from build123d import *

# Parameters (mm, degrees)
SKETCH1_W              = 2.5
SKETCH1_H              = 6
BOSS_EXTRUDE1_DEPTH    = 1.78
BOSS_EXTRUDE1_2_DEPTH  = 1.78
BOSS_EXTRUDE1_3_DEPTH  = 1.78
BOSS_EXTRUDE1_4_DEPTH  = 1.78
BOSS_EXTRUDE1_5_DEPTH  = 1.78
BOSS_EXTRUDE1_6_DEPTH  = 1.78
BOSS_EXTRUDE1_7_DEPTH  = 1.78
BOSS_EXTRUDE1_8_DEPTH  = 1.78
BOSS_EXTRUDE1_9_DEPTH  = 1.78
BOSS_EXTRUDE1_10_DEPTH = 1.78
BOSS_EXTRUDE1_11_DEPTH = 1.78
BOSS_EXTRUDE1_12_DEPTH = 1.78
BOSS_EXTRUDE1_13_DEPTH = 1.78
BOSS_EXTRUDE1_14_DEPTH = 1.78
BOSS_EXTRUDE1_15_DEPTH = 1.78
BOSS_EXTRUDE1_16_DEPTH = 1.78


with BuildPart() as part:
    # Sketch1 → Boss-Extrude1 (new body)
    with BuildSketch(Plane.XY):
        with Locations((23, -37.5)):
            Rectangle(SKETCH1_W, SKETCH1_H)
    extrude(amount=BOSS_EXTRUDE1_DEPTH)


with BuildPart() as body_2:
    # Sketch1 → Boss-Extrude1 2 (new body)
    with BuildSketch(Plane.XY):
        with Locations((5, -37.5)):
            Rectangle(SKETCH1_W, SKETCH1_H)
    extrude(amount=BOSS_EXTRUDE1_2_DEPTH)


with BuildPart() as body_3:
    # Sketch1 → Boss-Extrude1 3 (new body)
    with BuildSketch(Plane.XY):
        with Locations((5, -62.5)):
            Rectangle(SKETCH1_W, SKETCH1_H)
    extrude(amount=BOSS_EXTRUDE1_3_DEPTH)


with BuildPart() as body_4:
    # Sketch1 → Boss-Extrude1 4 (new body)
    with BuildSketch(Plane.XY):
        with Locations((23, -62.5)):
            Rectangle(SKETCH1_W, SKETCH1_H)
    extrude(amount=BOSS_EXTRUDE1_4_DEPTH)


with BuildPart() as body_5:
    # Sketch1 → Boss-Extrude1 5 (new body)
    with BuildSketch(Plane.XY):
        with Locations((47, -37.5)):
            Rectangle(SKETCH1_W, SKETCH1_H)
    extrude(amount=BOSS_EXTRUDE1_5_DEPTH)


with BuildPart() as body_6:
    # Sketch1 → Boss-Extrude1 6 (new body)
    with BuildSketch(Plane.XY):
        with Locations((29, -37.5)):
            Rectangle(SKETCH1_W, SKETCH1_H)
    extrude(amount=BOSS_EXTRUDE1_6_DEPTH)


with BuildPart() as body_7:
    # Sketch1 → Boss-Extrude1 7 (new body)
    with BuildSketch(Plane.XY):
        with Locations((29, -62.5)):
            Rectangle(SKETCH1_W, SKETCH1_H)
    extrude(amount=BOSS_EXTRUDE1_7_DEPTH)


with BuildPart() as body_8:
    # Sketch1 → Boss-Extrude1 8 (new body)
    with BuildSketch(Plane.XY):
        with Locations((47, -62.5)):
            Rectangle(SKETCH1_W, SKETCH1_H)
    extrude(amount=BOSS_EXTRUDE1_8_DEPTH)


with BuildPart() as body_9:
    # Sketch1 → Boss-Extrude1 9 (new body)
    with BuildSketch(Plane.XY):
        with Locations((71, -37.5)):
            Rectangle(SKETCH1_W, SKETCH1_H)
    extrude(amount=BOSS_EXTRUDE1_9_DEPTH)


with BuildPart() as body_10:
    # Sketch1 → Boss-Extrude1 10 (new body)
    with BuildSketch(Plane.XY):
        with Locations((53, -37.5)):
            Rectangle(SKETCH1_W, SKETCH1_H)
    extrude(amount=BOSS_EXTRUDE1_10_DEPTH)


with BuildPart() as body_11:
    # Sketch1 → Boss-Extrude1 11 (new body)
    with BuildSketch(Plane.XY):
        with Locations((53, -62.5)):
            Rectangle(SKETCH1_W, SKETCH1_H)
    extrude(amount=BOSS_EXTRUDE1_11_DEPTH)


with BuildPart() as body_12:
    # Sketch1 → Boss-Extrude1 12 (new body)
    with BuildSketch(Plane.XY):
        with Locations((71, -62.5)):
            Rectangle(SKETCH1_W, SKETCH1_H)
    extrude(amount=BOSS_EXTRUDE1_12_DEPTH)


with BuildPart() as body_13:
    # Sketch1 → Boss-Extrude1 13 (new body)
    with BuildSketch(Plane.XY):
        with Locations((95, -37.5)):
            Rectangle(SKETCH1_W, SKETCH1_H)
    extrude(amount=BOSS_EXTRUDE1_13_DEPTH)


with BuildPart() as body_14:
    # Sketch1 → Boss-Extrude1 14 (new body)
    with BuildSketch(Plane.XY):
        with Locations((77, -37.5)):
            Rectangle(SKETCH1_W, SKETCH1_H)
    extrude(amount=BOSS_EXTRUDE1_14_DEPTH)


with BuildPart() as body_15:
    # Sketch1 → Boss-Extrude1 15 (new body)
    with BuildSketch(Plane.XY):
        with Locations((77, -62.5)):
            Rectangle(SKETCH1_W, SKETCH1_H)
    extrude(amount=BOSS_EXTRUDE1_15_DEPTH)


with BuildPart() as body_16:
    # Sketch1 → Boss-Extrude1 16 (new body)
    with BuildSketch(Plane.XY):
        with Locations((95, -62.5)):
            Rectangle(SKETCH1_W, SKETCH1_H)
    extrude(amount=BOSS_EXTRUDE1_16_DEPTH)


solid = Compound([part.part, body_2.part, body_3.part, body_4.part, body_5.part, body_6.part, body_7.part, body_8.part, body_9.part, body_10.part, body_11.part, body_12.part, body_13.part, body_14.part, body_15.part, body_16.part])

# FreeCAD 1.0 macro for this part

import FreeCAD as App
import Part
import Sketcher
Q = App.Units.Quantity


def add_polygon(sketch, points):
    """Adds a closed chain of lines whose ends are joined by coincident constraints."""
    first, n = sketch.GeometryCount, len(points)
    for a, b in zip(points, points[1:] + points[:1]):
        sketch.addGeometry(Part.LineSegment(App.Vector(*a, 0), App.Vector(*b, 0)), False)
    for i in range(n):
        sketch.addConstraint(Sketcher.Constraint("Coincident", first + i, 2, first + (i + 1) % n, 1))

doc = App.newDocument("Part")
body = doc.addObject("PartDesign::Body", "Body")

# Sketch on XY plane
sketch1 = doc.addObject("Sketcher::SketchObject", "Sketch")
body.addObject(sketch1)
sketch1.AttachmentSupport = (doc.XY_Plane, [""])
sketch1.MapMode = "FlatFace"
add_polygon(sketch1, [(21.8, -34.5), (21.8, -40.5), (24.2, -40.5), (24.2, -34.5)])  # lines 0-3
sketch1.addConstraint([
    Sketcher.Constraint("Vertical", 0),
    Sketcher.Constraint("Horizontal", 1),
    Sketcher.Constraint("Vertical", 2),
    Sketcher.Constraint("Horizontal", 3),
    Sketcher.Constraint("DistanceY", 0, 2, 0, 1, Q("6 mm")),
    Sketcher.Constraint("DistanceX", 1, 1, 1, 2, Q("2.5 mm")),
    Sketcher.Constraint("DistanceY", 0, 2, -1, 1, Q("40.5 mm")),
    Sketcher.Constraint("DistanceX", -1, 1, 0, 2, Q("21.75 mm")),
])
pad1 = doc.addObject("PartDesign::Pad", "Pad")
body.addObject(pad1)
pad1.Profile = sketch1
pad1.Length = 1.78
body2 = doc.addObject("PartDesign::Body", "Body001")

# Sketch on XY plane
sketch2 = doc.addObject("Sketcher::SketchObject", "Sketch001")
body2.addObject(sketch2)
sketch2.AttachmentSupport = (doc.getObject("XY_Plane001"), [""])
sketch2.MapMode = "FlatFace"
add_polygon(sketch2, [(3.8, -34.5), (3.8, -40.5), (6.2, -40.5), (6.2, -34.5)])  # lines 0-3
sketch2.addConstraint([
    Sketcher.Constraint("Vertical", 0),
    Sketcher.Constraint("Horizontal", 1),
    Sketcher.Constraint("Vertical", 2),
    Sketcher.Constraint("Horizontal", 3),
    Sketcher.Constraint("DistanceY", 0, 2, 0, 1, Q("6 mm")),
    Sketcher.Constraint("DistanceX", 1, 1, 1, 2, Q("2.5 mm")),
    Sketcher.Constraint("DistanceY", 0, 2, -1, 1, Q("40.5 mm")),
    Sketcher.Constraint("DistanceX", -1, 1, 0, 2, Q("3.75 mm")),
])
pad2 = doc.addObject("PartDesign::Pad", "Pad001")
body2.addObject(pad2)
pad2.Profile = sketch2
pad2.Length = 1.78
body3 = doc.addObject("PartDesign::Body", "Body002")

# Sketch on XY plane
sketch3 = doc.addObject("Sketcher::SketchObject", "Sketch002")
body3.addObject(sketch3)
sketch3.AttachmentSupport = (doc.getObject("XY_Plane002"), [""])
sketch3.MapMode = "FlatFace"
add_polygon(sketch3, [(3.8, -59.5), (3.8, -65.5), (6.2, -65.5), (6.2, -59.5)])  # lines 0-3
sketch3.addConstraint([
    Sketcher.Constraint("Vertical", 0),
    Sketcher.Constraint("Horizontal", 1),
    Sketcher.Constraint("Vertical", 2),
    Sketcher.Constraint("Horizontal", 3),
    Sketcher.Constraint("DistanceY", 0, 2, 0, 1, Q("6 mm")),
    Sketcher.Constraint("DistanceX", 1, 1, 1, 2, Q("2.5 mm")),
    Sketcher.Constraint("DistanceY", 0, 2, -1, 1, Q("65.5 mm")),
    Sketcher.Constraint("DistanceX", -1, 1, 0, 2, Q("3.75 mm")),
])
pad3 = doc.addObject("PartDesign::Pad", "Pad002")
body3.addObject(pad3)
pad3.Profile = sketch3
pad3.Length = 1.78
body4 = doc.addObject("PartDesign::Body", "Body003")

# Sketch on XY plane
sketch4 = doc.addObject("Sketcher::SketchObject", "Sketch003")
body4.addObject(sketch4)
sketch4.AttachmentSupport = (doc.getObject("XY_Plane003"), [""])
sketch4.MapMode = "FlatFace"
add_polygon(sketch4, [(21.8, -59.5), (21.8, -65.5), (24.2, -65.5), (24.2, -59.5)])  # lines 0-3
sketch4.addConstraint([
    Sketcher.Constraint("Vertical", 0),
    Sketcher.Constraint("Horizontal", 1),
    Sketcher.Constraint("Vertical", 2),
    Sketcher.Constraint("Horizontal", 3),
    Sketcher.Constraint("DistanceY", 0, 2, 0, 1, Q("6 mm")),
    Sketcher.Constraint("DistanceX", 1, 1, 1, 2, Q("2.5 mm")),
    Sketcher.Constraint("DistanceY", 0, 2, -1, 1, Q("65.5 mm")),
    Sketcher.Constraint("DistanceX", -1, 1, 0, 2, Q("21.75 mm")),
])
pad4 = doc.addObject("PartDesign::Pad", "Pad003")
body4.addObject(pad4)
pad4.Profile = sketch4
pad4.Length = 1.78
body5 = doc.addObject("PartDesign::Body", "Body004")

# Sketch on XY plane
sketch5 = doc.addObject("Sketcher::SketchObject", "Sketch004")
body5.addObject(sketch5)
sketch5.AttachmentSupport = (doc.getObject("XY_Plane004"), [""])
sketch5.MapMode = "FlatFace"
add_polygon(sketch5, [(45.8, -34.5), (45.8, -40.5), (48.2, -40.5), (48.2, -34.5)])  # lines 0-3
sketch5.addConstraint([
    Sketcher.Constraint("Vertical", 0),
    Sketcher.Constraint("Horizontal", 1),
    Sketcher.Constraint("Vertical", 2),
    Sketcher.Constraint("Horizontal", 3),
    Sketcher.Constraint("DistanceY", 0, 2, 0, 1, Q("6 mm")),
    Sketcher.Constraint("DistanceX", 1, 1, 1, 2, Q("2.5 mm")),
    Sketcher.Constraint("DistanceY", 0, 2, -1, 1, Q("40.5 mm")),
    Sketcher.Constraint("DistanceX", -1, 1, 0, 2, Q("45.75 mm")),
])
pad5 = doc.addObject("PartDesign::Pad", "Pad004")
body5.addObject(pad5)
pad5.Profile = sketch5
pad5.Length = 1.78
body6 = doc.addObject("PartDesign::Body", "Body005")

# Sketch on XY plane
sketch6 = doc.addObject("Sketcher::SketchObject", "Sketch005")
body6.addObject(sketch6)
sketch6.AttachmentSupport = (doc.getObject("XY_Plane005"), [""])
sketch6.MapMode = "FlatFace"
add_polygon(sketch6, [(27.8, -34.5), (27.8, -40.5), (30.2, -40.5), (30.2, -34.5)])  # lines 0-3
sketch6.addConstraint([
    Sketcher.Constraint("Vertical", 0),
    Sketcher.Constraint("Horizontal", 1),
    Sketcher.Constraint("Vertical", 2),
    Sketcher.Constraint("Horizontal", 3),
    Sketcher.Constraint("DistanceY", 0, 2, 0, 1, Q("6 mm")),
    Sketcher.Constraint("DistanceX", 1, 1, 1, 2, Q("2.5 mm")),
    Sketcher.Constraint("DistanceY", 0, 2, -1, 1, Q("40.5 mm")),
    Sketcher.Constraint("DistanceX", -1, 1, 0, 2, Q("27.75 mm")),
])
pad6 = doc.addObject("PartDesign::Pad", "Pad005")
body6.addObject(pad6)
pad6.Profile = sketch6
pad6.Length = 1.78
body7 = doc.addObject("PartDesign::Body", "Body006")

# Sketch on XY plane
sketch7 = doc.addObject("Sketcher::SketchObject", "Sketch006")
body7.addObject(sketch7)
sketch7.AttachmentSupport = (doc.getObject("XY_Plane006"), [""])
sketch7.MapMode = "FlatFace"
add_polygon(sketch7, [(27.8, -59.5), (27.8, -65.5), (30.2, -65.5), (30.2, -59.5)])  # lines 0-3
sketch7.addConstraint([
    Sketcher.Constraint("Vertical", 0),
    Sketcher.Constraint("Horizontal", 1),
    Sketcher.Constraint("Vertical", 2),
    Sketcher.Constraint("Horizontal", 3),
    Sketcher.Constraint("DistanceY", 0, 2, 0, 1, Q("6 mm")),
    Sketcher.Constraint("DistanceX", 1, 1, 1, 2, Q("2.5 mm")),
    Sketcher.Constraint("DistanceY", 0, 2, -1, 1, Q("65.5 mm")),
    Sketcher.Constraint("DistanceX", -1, 1, 0, 2, Q("27.75 mm")),
])
pad7 = doc.addObject("PartDesign::Pad", "Pad006")
body7.addObject(pad7)
pad7.Profile = sketch7
pad7.Length = 1.78
body8 = doc.addObject("PartDesign::Body", "Body007")

# Sketch on XY plane
sketch8 = doc.addObject("Sketcher::SketchObject", "Sketch007")
body8.addObject(sketch8)
sketch8.AttachmentSupport = (doc.getObject("XY_Plane007"), [""])
sketch8.MapMode = "FlatFace"
add_polygon(sketch8, [(45.8, -59.5), (45.8, -65.5), (48.2, -65.5), (48.2, -59.5)])  # lines 0-3
sketch8.addConstraint([
    Sketcher.Constraint("Vertical", 0),
    Sketcher.Constraint("Horizontal", 1),
    Sketcher.Constraint("Vertical", 2),
    Sketcher.Constraint("Horizontal", 3),
    Sketcher.Constraint("DistanceY", 0, 2, 0, 1, Q("6 mm")),
    Sketcher.Constraint("DistanceX", 1, 1, 1, 2, Q("2.5 mm")),
    Sketcher.Constraint("DistanceY", 0, 2, -1, 1, Q("65.5 mm")),
    Sketcher.Constraint("DistanceX", -1, 1, 0, 2, Q("45.75 mm")),
])
pad8 = doc.addObject("PartDesign::Pad", "Pad007")
body8.addObject(pad8)
pad8.Profile = sketch8
pad8.Length = 1.78
body9 = doc.addObject("PartDesign::Body", "Body008")

# Sketch on XY plane
sketch9 = doc.addObject("Sketcher::SketchObject", "Sketch008")
body9.addObject(sketch9)
sketch9.AttachmentSupport = (doc.getObject("XY_Plane008"), [""])
sketch9.MapMode = "FlatFace"
add_polygon(sketch9, [(69.8, -34.5), (69.8, -40.5), (72.2, -40.5), (72.2, -34.5)])  # lines 0-3
sketch9.addConstraint([
    Sketcher.Constraint("Vertical", 0),
    Sketcher.Constraint("Horizontal", 1),
    Sketcher.Constraint("Vertical", 2),
    Sketcher.Constraint("Horizontal", 3),
    Sketcher.Constraint("DistanceY", 0, 2, 0, 1, Q("6 mm")),
    Sketcher.Constraint("DistanceX", 1, 1, 1, 2, Q("2.5 mm")),
    Sketcher.Constraint("DistanceY", 0, 2, -1, 1, Q("40.5 mm")),
    Sketcher.Constraint("DistanceX", -1, 1, 0, 2, Q("69.75 mm")),
])
pad9 = doc.addObject("PartDesign::Pad", "Pad008")
body9.addObject(pad9)
pad9.Profile = sketch9
pad9.Length = 1.78
body10 = doc.addObject("PartDesign::Body", "Body009")

# Sketch on XY plane
sketch10 = doc.addObject("Sketcher::SketchObject", "Sketch009")
body10.addObject(sketch10)
sketch10.AttachmentSupport = (doc.getObject("XY_Plane009"), [""])
sketch10.MapMode = "FlatFace"
add_polygon(sketch10, [(51.8, -34.5), (51.8, -40.5), (54.2, -40.5), (54.2, -34.5)])  # lines 0-3
sketch10.addConstraint([
    Sketcher.Constraint("Vertical", 0),
    Sketcher.Constraint("Horizontal", 1),
    Sketcher.Constraint("Vertical", 2),
    Sketcher.Constraint("Horizontal", 3),
    Sketcher.Constraint("DistanceY", 0, 2, 0, 1, Q("6 mm")),
    Sketcher.Constraint("DistanceX", 1, 1, 1, 2, Q("2.5 mm")),
    Sketcher.Constraint("DistanceY", 0, 2, -1, 1, Q("40.5 mm")),
    Sketcher.Constraint("DistanceX", -1, 1, 0, 2, Q("51.75 mm")),
])
pad10 = doc.addObject("PartDesign::Pad", "Pad009")
body10.addObject(pad10)
pad10.Profile = sketch10
pad10.Length = 1.78
body11 = doc.addObject("PartDesign::Body", "Body010")

# Sketch on XY plane
sketch11 = doc.addObject("Sketcher::SketchObject", "Sketch010")
body11.addObject(sketch11)
sketch11.AttachmentSupport = (doc.getObject("XY_Plane010"), [""])
sketch11.MapMode = "FlatFace"
add_polygon(sketch11, [(51.8, -59.5), (51.8, -65.5), (54.2, -65.5), (54.2, -59.5)])  # lines 0-3
sketch11.addConstraint([
    Sketcher.Constraint("Vertical", 0),
    Sketcher.Constraint("Horizontal", 1),
    Sketcher.Constraint("Vertical", 2),
    Sketcher.Constraint("Horizontal", 3),
    Sketcher.Constraint("DistanceY", 0, 2, 0, 1, Q("6 mm")),
    Sketcher.Constraint("DistanceX", 1, 1, 1, 2, Q("2.5 mm")),
    Sketcher.Constraint("DistanceY", 0, 2, -1, 1, Q("65.5 mm")),
    Sketcher.Constraint("DistanceX", -1, 1, 0, 2, Q("51.75 mm")),
])
pad11 = doc.addObject("PartDesign::Pad", "Pad010")
body11.addObject(pad11)
pad11.Profile = sketch11
pad11.Length = 1.78
body12 = doc.addObject("PartDesign::Body", "Body011")

# Sketch on XY plane
sketch12 = doc.addObject("Sketcher::SketchObject", "Sketch011")
body12.addObject(sketch12)
sketch12.AttachmentSupport = (doc.getObject("XY_Plane011"), [""])
sketch12.MapMode = "FlatFace"
add_polygon(sketch12, [(69.8, -59.5), (69.8, -65.5), (72.2, -65.5), (72.2, -59.5)])  # lines 0-3
sketch12.addConstraint([
    Sketcher.Constraint("Vertical", 0),
    Sketcher.Constraint("Horizontal", 1),
    Sketcher.Constraint("Vertical", 2),
    Sketcher.Constraint("Horizontal", 3),
    Sketcher.Constraint("DistanceY", 0, 2, 0, 1, Q("6 mm")),
    Sketcher.Constraint("DistanceX", 1, 1, 1, 2, Q("2.5 mm")),
    Sketcher.Constraint("DistanceY", 0, 2, -1, 1, Q("65.5 mm")),
    Sketcher.Constraint("DistanceX", -1, 1, 0, 2, Q("69.75 mm")),
])
pad12 = doc.addObject("PartDesign::Pad", "Pad011")
body12.addObject(pad12)
pad12.Profile = sketch12
pad12.Length = 1.78
body13 = doc.addObject("PartDesign::Body", "Body012")

# Sketch on XY plane
sketch13 = doc.addObject("Sketcher::SketchObject", "Sketch012")
body13.addObject(sketch13)
sketch13.AttachmentSupport = (doc.getObject("XY_Plane012"), [""])
sketch13.MapMode = "FlatFace"
add_polygon(sketch13, [(93.8, -34.5), (93.8, -40.5), (96.2, -40.5), (96.2, -34.5)])  # lines 0-3
sketch13.addConstraint([
    Sketcher.Constraint("Vertical", 0),
    Sketcher.Constraint("Horizontal", 1),
    Sketcher.Constraint("Vertical", 2),
    Sketcher.Constraint("Horizontal", 3),
    Sketcher.Constraint("DistanceY", 0, 2, 0, 1, Q("6 mm")),
    Sketcher.Constraint("DistanceX", 1, 1, 1, 2, Q("2.5 mm")),
    Sketcher.Constraint("DistanceY", 0, 2, -1, 1, Q("40.5 mm")),
    Sketcher.Constraint("DistanceX", -1, 1, 0, 2, Q("93.75 mm")),
])
pad13 = doc.addObject("PartDesign::Pad", "Pad012")
body13.addObject(pad13)
pad13.Profile = sketch13
pad13.Length = 1.78
body14 = doc.addObject("PartDesign::Body", "Body013")

# Sketch on XY plane
sketch14 = doc.addObject("Sketcher::SketchObject", "Sketch013")
body14.addObject(sketch14)
sketch14.AttachmentSupport = (doc.getObject("XY_Plane013"), [""])
sketch14.MapMode = "FlatFace"
add_polygon(sketch14, [(75.8, -34.5), (75.8, -40.5), (78.2, -40.5), (78.2, -34.5)])  # lines 0-3
sketch14.addConstraint([
    Sketcher.Constraint("Vertical", 0),
    Sketcher.Constraint("Horizontal", 1),
    Sketcher.Constraint("Vertical", 2),
    Sketcher.Constraint("Horizontal", 3),
    Sketcher.Constraint("DistanceY", 0, 2, 0, 1, Q("6 mm")),
    Sketcher.Constraint("DistanceX", 1, 1, 1, 2, Q("2.5 mm")),
    Sketcher.Constraint("DistanceY", 0, 2, -1, 1, Q("40.5 mm")),
    Sketcher.Constraint("DistanceX", -1, 1, 0, 2, Q("75.75 mm")),
])
pad14 = doc.addObject("PartDesign::Pad", "Pad013")
body14.addObject(pad14)
pad14.Profile = sketch14
pad14.Length = 1.78
body15 = doc.addObject("PartDesign::Body", "Body014")

# Sketch on XY plane
sketch15 = doc.addObject("Sketcher::SketchObject", "Sketch014")
body15.addObject(sketch15)
sketch15.AttachmentSupport = (doc.getObject("XY_Plane014"), [""])
sketch15.MapMode = "FlatFace"
add_polygon(sketch15, [(75.8, -59.5), (75.8, -65.5), (78.2, -65.5), (78.2, -59.5)])  # lines 0-3
sketch15.addConstraint([
    Sketcher.Constraint("Vertical", 0),
    Sketcher.Constraint("Horizontal", 1),
    Sketcher.Constraint("Vertical", 2),
    Sketcher.Constraint("Horizontal", 3),
    Sketcher.Constraint("DistanceY", 0, 2, 0, 1, Q("6 mm")),
    Sketcher.Constraint("DistanceX", 1, 1, 1, 2, Q("2.5 mm")),
    Sketcher.Constraint("DistanceY", 0, 2, -1, 1, Q("65.5 mm")),
    Sketcher.Constraint("DistanceX", -1, 1, 0, 2, Q("75.75 mm")),
])
pad15 = doc.addObject("PartDesign::Pad", "Pad014")
body15.addObject(pad15)
pad15.Profile = sketch15
pad15.Length = 1.78
body16 = doc.addObject("PartDesign::Body", "Body015")

# Sketch on XY plane
sketch16 = doc.addObject("Sketcher::SketchObject", "Sketch015")
body16.addObject(sketch16)
sketch16.AttachmentSupport = (doc.getObject("XY_Plane015"), [""])
sketch16.MapMode = "FlatFace"
add_polygon(sketch16, [(93.8, -59.5), (93.8, -65.5), (96.2, -65.5), (96.2, -59.5)])  # lines 0-3
sketch16.addConstraint([
    Sketcher.Constraint("Vertical", 0),
    Sketcher.Constraint("Horizontal", 1),
    Sketcher.Constraint("Vertical", 2),
    Sketcher.Constraint("Horizontal", 3),
    Sketcher.Constraint("DistanceY", 0, 2, 0, 1, Q("6 mm")),
    Sketcher.Constraint("DistanceX", 1, 1, 1, 2, Q("2.5 mm")),
    Sketcher.Constraint("DistanceY", 0, 2, -1, 1, Q("65.5 mm")),
    Sketcher.Constraint("DistanceX", -1, 1, 0, 2, Q("93.75 mm")),
])
pad16 = doc.addObject("PartDesign::Pad", "Pad015")
body16.addObject(pad16)
pad16.Profile = sketch16
pad16.Length = 1.78

doc.recompute()
